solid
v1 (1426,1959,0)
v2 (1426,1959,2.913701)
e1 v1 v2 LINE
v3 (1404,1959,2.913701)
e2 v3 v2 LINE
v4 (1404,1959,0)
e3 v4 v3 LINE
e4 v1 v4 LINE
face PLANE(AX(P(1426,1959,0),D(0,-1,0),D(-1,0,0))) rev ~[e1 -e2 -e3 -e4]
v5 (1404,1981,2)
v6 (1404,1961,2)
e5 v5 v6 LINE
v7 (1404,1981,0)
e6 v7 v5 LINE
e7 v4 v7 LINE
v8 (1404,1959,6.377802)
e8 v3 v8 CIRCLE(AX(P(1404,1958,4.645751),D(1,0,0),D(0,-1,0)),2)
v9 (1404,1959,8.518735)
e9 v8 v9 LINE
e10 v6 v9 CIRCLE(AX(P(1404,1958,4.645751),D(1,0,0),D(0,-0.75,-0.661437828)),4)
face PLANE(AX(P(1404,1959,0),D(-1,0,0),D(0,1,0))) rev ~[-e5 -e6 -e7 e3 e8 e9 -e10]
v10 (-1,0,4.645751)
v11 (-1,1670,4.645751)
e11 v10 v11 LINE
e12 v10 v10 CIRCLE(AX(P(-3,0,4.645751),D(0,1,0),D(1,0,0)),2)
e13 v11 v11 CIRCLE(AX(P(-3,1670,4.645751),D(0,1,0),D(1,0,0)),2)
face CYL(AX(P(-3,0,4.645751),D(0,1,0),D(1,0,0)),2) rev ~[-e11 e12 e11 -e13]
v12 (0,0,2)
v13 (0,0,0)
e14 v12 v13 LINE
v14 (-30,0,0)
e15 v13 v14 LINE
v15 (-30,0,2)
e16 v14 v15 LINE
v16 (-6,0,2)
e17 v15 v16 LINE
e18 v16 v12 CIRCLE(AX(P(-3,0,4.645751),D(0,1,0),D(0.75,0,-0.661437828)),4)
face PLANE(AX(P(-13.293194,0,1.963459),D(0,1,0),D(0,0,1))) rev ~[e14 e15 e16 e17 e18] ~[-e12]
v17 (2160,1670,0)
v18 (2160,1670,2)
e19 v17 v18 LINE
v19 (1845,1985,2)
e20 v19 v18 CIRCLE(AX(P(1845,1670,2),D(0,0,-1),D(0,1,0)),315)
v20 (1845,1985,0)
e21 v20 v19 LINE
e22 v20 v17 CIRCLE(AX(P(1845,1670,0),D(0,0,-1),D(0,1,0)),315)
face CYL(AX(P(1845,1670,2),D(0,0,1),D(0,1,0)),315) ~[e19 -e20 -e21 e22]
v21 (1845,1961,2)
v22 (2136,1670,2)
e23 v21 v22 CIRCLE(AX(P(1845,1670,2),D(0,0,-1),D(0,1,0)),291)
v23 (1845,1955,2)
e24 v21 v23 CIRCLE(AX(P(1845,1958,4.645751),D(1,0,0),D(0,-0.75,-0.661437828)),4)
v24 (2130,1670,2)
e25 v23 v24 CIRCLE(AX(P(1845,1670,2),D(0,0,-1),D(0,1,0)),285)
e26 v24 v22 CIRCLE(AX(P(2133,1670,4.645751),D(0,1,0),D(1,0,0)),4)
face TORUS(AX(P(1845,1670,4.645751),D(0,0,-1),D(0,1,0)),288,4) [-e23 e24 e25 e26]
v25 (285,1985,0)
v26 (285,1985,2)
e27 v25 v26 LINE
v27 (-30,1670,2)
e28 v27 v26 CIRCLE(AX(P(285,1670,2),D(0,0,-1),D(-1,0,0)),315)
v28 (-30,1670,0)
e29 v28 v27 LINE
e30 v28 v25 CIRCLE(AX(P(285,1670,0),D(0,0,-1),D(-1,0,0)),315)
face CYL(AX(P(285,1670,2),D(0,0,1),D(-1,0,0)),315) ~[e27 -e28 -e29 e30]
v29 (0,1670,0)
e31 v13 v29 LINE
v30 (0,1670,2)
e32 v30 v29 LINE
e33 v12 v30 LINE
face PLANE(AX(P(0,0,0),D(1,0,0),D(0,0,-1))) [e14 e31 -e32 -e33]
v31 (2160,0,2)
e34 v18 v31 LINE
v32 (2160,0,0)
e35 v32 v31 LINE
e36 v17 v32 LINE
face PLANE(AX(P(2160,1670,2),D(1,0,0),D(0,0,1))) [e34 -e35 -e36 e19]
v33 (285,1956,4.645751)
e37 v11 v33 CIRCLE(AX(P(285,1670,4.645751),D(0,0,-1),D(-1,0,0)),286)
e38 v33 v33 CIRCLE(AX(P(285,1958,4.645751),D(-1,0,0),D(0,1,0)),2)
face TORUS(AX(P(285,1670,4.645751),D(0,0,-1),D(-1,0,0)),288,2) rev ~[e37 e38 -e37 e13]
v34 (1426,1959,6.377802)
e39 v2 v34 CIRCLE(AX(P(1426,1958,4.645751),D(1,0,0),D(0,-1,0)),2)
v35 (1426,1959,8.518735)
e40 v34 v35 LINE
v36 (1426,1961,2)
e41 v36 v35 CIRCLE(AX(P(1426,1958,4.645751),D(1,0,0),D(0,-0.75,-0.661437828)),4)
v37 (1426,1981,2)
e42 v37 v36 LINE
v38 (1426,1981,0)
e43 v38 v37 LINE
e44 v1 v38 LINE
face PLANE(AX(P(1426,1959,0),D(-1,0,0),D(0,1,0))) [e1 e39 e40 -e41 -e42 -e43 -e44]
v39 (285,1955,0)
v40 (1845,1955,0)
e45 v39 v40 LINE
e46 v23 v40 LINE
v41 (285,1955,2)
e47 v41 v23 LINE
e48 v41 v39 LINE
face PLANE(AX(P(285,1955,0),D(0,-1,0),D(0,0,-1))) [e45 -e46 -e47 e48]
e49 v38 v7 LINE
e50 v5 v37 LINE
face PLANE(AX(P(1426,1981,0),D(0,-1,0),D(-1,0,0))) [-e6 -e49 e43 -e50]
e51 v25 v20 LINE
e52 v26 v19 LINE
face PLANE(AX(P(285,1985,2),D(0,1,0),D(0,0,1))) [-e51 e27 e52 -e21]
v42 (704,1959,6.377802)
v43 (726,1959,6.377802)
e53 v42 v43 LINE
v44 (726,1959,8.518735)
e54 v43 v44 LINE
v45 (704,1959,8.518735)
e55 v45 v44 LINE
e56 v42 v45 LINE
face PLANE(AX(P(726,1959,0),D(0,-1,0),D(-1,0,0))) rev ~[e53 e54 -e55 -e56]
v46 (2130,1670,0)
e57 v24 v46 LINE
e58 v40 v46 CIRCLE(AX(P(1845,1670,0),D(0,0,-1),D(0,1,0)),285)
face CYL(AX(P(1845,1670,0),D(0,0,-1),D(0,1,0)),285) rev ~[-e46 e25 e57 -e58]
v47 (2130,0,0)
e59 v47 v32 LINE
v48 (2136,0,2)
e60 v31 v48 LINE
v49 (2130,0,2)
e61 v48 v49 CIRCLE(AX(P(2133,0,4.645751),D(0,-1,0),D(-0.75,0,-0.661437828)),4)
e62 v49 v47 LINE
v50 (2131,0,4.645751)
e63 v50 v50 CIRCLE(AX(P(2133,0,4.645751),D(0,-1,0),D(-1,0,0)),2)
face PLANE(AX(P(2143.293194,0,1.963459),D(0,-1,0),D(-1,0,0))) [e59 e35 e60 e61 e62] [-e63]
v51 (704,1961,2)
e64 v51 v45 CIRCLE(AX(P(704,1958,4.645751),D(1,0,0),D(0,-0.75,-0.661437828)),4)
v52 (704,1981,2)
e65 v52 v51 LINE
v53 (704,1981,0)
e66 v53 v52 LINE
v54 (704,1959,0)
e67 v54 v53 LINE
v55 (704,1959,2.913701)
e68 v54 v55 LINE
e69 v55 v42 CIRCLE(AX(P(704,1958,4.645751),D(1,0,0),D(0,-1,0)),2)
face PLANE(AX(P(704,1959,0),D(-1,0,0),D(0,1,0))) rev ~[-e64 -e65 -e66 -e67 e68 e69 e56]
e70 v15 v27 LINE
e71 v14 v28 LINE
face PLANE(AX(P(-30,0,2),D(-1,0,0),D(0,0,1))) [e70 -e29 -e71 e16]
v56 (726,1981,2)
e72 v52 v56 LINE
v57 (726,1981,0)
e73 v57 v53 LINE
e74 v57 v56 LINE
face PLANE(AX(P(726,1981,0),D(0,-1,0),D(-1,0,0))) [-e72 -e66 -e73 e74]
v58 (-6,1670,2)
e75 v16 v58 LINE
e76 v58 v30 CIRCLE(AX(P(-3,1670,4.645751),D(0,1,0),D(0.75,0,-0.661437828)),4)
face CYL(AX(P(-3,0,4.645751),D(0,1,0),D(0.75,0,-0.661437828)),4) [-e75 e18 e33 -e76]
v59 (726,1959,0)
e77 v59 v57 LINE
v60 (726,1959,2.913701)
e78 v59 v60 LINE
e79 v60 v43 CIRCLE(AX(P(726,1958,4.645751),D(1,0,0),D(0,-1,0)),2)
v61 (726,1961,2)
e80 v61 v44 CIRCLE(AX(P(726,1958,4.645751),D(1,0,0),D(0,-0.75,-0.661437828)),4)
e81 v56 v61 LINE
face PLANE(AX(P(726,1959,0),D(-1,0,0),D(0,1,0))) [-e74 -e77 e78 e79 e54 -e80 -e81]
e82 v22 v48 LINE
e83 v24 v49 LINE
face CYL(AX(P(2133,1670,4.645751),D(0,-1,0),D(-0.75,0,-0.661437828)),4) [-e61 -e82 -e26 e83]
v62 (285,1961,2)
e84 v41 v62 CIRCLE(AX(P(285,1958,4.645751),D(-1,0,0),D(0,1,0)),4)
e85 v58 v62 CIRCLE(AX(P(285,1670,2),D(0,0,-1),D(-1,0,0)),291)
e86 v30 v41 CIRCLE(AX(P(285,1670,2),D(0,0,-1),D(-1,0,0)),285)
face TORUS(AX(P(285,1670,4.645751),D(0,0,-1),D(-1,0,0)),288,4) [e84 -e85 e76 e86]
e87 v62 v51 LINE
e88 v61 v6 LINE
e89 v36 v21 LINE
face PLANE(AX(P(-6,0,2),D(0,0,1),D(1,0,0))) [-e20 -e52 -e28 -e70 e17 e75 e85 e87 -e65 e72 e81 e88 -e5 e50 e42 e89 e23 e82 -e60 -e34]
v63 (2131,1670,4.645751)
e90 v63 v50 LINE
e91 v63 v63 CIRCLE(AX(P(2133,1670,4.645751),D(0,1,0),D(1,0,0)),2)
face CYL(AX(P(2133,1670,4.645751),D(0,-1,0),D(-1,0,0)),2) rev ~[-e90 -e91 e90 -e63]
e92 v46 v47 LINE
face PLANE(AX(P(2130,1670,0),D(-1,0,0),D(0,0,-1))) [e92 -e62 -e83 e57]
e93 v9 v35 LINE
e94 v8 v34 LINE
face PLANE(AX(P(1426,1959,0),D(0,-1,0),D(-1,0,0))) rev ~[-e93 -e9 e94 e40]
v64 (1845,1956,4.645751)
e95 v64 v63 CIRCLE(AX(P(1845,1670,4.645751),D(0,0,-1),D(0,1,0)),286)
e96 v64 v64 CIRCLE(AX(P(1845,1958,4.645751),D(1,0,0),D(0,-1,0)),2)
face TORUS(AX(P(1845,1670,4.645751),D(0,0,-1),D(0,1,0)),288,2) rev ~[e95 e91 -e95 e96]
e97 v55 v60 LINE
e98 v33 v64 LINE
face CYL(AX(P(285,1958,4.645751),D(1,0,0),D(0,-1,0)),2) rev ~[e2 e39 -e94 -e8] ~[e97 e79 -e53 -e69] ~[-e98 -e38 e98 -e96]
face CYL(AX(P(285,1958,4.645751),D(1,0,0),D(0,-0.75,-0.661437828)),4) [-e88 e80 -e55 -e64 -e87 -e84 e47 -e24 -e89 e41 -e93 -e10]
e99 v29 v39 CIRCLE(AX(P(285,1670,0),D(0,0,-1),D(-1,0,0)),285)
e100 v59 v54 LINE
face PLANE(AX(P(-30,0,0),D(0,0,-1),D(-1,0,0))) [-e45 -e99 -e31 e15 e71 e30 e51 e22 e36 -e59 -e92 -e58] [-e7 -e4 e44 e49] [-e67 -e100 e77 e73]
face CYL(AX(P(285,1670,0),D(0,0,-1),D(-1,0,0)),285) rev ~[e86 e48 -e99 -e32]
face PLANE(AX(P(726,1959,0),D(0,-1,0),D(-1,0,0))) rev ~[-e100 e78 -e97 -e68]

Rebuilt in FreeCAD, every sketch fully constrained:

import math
import FreeCAD as App
import Part
import Sketcher
Q = App.Units.Quantity


def add_polygon(sketch, points):
    """Adds a closed chain of lines whose ends are joined by coincident constraints."""
    first, n = sketch.GeometryCount, len(points)
    for a, b in zip(points, points[1:] + points[:1]):
        sketch.addGeometry(Part.LineSegment(App.Vector(*a, 0), App.Vector(*b, 0)), False)
    for i in range(n):
        sketch.addConstraint(Sketcher.Constraint("Coincident", first + i, 2, first + (i + 1) % n, 1))

doc = App.newDocument("Part")
body = doc.addObject("PartDesign::Body", "Body")

sketch1 = body.newObject("Sketcher::SketchObject", "Sketch")
sketch1.AttachmentSupport = (doc.getObject("XZ_Plane"), [""])
sketch1.MapMode = "FlatFace"
sketch1.addGeometry(Part.LineSegment(App.Vector(0, 2, 0), App.Vector(0, 0, 0)), False)
sketch1.addGeometry(Part.LineSegment(App.Vector(0, 0, 0), App.Vector(-30, 0, 0)), False)
sketch1.addGeometry(Part.LineSegment(App.Vector(-30, 0, 0), App.Vector(-30, 2, 0)), False)
sketch1.addGeometry(Part.LineSegment(App.Vector(-30, 2, 0), App.Vector(-6, 2, 0)), False)
sketch1.addGeometry(Part.ArcOfCircle(Part.Circle(App.Vector(-3, 4.6, 0), App.Vector(0, 0, 1), 4), math.radians(-41), math.radians(221)), False)
sketch1.addGeometry(Part.Circle(App.Vector(-3, 4.6, 0), App.Vector(0, 0, 1), 2), False)
sketch1.addConstraint(Sketcher.Constraint("Coincident", 0, 2, 1, 1))
sketch1.addConstraint(Sketcher.Constraint("Coincident", 1, 2, 2, 1))
sketch1.addConstraint(Sketcher.Constraint("Coincident", 2, 2, 3, 1))
sketch1.addConstraint(Sketcher.Constraint("Coincident", 3, 2, 4, 2))
sketch1.addConstraint(Sketcher.Constraint("Coincident", 4, 1, 0, 1))
sketch1.addConstraint(Sketcher.Constraint("Vertical", 0))
sketch1.addConstraint(Sketcher.Constraint("Horizontal", 1))
sketch1.addConstraint(Sketcher.Constraint("Vertical", 2))
sketch1.addConstraint(Sketcher.Constraint("Horizontal", 3))
sketch1.addConstraint(Sketcher.Constraint("Coincident", 0, 2, -1, 1))
sketch1.addConstraint(Sketcher.Constraint("Coincident", 5, 3, 4, 3))
sketch1.addConstraint(Sketcher.Constraint("Horizontal", 3, 2, 4, 1))
sketch1.addConstraint(Sketcher.Constraint("Diameter", 5, Q("4 mm")))
sketch1.addConstraint(Sketcher.Constraint("Radius", 4, Q("4 mm")))
sketch1.addConstraint(Sketcher.Constraint("DistanceX", 1, 2, 1, 1, Q("30 mm")))
sketch1.addConstraint(Sketcher.Constraint("DistanceX", 3, 1, 3, 2, Q("24 mm")))
sketch1.addConstraint(Sketcher.Constraint("DistanceY", 0, 2, 0, 1, Q("2 mm")))

sketch2 = body.newObject("Sketcher::SketchObject", "Sketch001")
sketch2.AttachmentSupport = (doc.getObject("XY_Plane"), [""])
sketch2.MapMode = "FlatFace"
sketch2.addGeometry(Part.LineSegment(App.Vector(0, 0, 0), App.Vector(0, 1670, 0)), False)
sketch2.addGeometry(Part.ArcOfCircle(Part.Circle(App.Vector(285, 1670, 0), App.Vector(0, 0, 1), 285), math.radians(90), math.radians(180)), False)
sketch2.addGeometry(Part.LineSegment(App.Vector(285, 1955, 0), App.Vector(1845, 1955, 0)), False)
sketch2.addGeometry(Part.ArcOfCircle(Part.Circle(App.Vector(1845, 1670, 0), App.Vector(0, 0, 1), 285), math.radians(0), math.radians(90)), False)
sketch2.addGeometry(Part.LineSegment(App.Vector(2130, 1670, 0), App.Vector(2130, 0, 0)), False)
sketch2.addConstraint(Sketcher.Constraint("Tangent", 0, 2, 1, 2))
sketch2.addConstraint(Sketcher.Constraint("Tangent", 1, 1, 2, 1))
sketch2.addConstraint(Sketcher.Constraint("Tangent", 2, 2, 3, 2))
sketch2.addConstraint(Sketcher.Constraint("Tangent", 3, 1, 4, 1))
sketch2.addConstraint(Sketcher.Constraint("Vertical", 0))
sketch2.addConstraint(Sketcher.Constraint("Horizontal", 2))
sketch2.addConstraint(Sketcher.Constraint("Vertical", 4))
sketch2.addConstraint(Sketcher.Constraint("Coincident", 0, 1, -1, 1))
sketch2.addConstraint(Sketcher.Constraint("Equal", 1, 3))
sketch2.addConstraint(Sketcher.Constraint("PointOnObject", 4, 2, -1))
sketch2.addConstraint(Sketcher.Constraint("Radius", 1, Q("285 mm")))
sketch2.addConstraint(Sketcher.Constraint("DistanceX", 2, 1, 2, 2, Q("1560 mm")))
sketch2.addConstraint(Sketcher.Constraint("DistanceY", 0, 1, 0, 2, Q("1670 mm")))
doc.recompute()

additivepipe = body.newObject("PartDesign::AdditivePipe", "AdditivePipe")
additivepipe.Profile = sketch1
additivepipe.Spine = (sketch2, ["Edge1", "Edge2", "Edge3", "Edge4", "Edge5"])

sketch3 = body.newObject("Sketcher::SketchObject", "Sketch002")
sketch3.AttachmentSupport = (doc.getObject("XY_Plane"), [""])
sketch3.MapMode = "FlatFace"
add_polygon(sketch3, [(1426, 1981), (1426, 1959), (1404, 1959), (1404, 1981)])
add_polygon(sketch3, [(726, 1981), (726, 1959), (704, 1959), (704, 1981)])
sketch3.addConstraint(Sketcher.Constraint("Vertical", 0))
sketch3.addConstraint(Sketcher.Constraint("Horizontal", 1))
sketch3.addConstraint(Sketcher.Constraint("Vertical", 2))
sketch3.addConstraint(Sketcher.Constraint("Horizontal", 3))
sketch3.addConstraint(Sketcher.Constraint("Vertical", 4))
sketch3.addConstraint(Sketcher.Constraint("Horizontal", 5))
sketch3.addConstraint(Sketcher.Constraint("Vertical", 6))
sketch3.addConstraint(Sketcher.Constraint("Horizontal", 7))
sketch3.addConstraint(Sketcher.Constraint("Horizontal", 1, 2, 4, 2))
sketch3.addConstraint(Sketcher.Constraint("Horizontal", 3, 2, 6, 2))
sketch3.addConstraint(Sketcher.Constraint("Equal", 3, 5))
sketch3.addConstraint(Sketcher.Constraint("Equal", 7, 0))
sketch3.addConstraint(Sketcher.Constraint("DistanceX", 1, 2, 1, 1, Q("22 mm")))
sketch3.addConstraint(Sketcher.Constraint("DistanceX", -1, 1, 0, 2, Q("1426 mm")))
sketch3.addConstraint(Sketcher.Constraint("DistanceY", -1, 1, 0, 2, Q("1959 mm")))
sketch3.addConstraint(Sketcher.Constraint("DistanceX", -1, 1, 4, 2, Q("726 mm")))
pocket1 = body.newObject("PartDesign::Pocket", "Pocket")
pocket1.Profile = sketch3
pocket1.Type = "ThroughAll"
pocket1.Reversed = True

doc.recompute()
